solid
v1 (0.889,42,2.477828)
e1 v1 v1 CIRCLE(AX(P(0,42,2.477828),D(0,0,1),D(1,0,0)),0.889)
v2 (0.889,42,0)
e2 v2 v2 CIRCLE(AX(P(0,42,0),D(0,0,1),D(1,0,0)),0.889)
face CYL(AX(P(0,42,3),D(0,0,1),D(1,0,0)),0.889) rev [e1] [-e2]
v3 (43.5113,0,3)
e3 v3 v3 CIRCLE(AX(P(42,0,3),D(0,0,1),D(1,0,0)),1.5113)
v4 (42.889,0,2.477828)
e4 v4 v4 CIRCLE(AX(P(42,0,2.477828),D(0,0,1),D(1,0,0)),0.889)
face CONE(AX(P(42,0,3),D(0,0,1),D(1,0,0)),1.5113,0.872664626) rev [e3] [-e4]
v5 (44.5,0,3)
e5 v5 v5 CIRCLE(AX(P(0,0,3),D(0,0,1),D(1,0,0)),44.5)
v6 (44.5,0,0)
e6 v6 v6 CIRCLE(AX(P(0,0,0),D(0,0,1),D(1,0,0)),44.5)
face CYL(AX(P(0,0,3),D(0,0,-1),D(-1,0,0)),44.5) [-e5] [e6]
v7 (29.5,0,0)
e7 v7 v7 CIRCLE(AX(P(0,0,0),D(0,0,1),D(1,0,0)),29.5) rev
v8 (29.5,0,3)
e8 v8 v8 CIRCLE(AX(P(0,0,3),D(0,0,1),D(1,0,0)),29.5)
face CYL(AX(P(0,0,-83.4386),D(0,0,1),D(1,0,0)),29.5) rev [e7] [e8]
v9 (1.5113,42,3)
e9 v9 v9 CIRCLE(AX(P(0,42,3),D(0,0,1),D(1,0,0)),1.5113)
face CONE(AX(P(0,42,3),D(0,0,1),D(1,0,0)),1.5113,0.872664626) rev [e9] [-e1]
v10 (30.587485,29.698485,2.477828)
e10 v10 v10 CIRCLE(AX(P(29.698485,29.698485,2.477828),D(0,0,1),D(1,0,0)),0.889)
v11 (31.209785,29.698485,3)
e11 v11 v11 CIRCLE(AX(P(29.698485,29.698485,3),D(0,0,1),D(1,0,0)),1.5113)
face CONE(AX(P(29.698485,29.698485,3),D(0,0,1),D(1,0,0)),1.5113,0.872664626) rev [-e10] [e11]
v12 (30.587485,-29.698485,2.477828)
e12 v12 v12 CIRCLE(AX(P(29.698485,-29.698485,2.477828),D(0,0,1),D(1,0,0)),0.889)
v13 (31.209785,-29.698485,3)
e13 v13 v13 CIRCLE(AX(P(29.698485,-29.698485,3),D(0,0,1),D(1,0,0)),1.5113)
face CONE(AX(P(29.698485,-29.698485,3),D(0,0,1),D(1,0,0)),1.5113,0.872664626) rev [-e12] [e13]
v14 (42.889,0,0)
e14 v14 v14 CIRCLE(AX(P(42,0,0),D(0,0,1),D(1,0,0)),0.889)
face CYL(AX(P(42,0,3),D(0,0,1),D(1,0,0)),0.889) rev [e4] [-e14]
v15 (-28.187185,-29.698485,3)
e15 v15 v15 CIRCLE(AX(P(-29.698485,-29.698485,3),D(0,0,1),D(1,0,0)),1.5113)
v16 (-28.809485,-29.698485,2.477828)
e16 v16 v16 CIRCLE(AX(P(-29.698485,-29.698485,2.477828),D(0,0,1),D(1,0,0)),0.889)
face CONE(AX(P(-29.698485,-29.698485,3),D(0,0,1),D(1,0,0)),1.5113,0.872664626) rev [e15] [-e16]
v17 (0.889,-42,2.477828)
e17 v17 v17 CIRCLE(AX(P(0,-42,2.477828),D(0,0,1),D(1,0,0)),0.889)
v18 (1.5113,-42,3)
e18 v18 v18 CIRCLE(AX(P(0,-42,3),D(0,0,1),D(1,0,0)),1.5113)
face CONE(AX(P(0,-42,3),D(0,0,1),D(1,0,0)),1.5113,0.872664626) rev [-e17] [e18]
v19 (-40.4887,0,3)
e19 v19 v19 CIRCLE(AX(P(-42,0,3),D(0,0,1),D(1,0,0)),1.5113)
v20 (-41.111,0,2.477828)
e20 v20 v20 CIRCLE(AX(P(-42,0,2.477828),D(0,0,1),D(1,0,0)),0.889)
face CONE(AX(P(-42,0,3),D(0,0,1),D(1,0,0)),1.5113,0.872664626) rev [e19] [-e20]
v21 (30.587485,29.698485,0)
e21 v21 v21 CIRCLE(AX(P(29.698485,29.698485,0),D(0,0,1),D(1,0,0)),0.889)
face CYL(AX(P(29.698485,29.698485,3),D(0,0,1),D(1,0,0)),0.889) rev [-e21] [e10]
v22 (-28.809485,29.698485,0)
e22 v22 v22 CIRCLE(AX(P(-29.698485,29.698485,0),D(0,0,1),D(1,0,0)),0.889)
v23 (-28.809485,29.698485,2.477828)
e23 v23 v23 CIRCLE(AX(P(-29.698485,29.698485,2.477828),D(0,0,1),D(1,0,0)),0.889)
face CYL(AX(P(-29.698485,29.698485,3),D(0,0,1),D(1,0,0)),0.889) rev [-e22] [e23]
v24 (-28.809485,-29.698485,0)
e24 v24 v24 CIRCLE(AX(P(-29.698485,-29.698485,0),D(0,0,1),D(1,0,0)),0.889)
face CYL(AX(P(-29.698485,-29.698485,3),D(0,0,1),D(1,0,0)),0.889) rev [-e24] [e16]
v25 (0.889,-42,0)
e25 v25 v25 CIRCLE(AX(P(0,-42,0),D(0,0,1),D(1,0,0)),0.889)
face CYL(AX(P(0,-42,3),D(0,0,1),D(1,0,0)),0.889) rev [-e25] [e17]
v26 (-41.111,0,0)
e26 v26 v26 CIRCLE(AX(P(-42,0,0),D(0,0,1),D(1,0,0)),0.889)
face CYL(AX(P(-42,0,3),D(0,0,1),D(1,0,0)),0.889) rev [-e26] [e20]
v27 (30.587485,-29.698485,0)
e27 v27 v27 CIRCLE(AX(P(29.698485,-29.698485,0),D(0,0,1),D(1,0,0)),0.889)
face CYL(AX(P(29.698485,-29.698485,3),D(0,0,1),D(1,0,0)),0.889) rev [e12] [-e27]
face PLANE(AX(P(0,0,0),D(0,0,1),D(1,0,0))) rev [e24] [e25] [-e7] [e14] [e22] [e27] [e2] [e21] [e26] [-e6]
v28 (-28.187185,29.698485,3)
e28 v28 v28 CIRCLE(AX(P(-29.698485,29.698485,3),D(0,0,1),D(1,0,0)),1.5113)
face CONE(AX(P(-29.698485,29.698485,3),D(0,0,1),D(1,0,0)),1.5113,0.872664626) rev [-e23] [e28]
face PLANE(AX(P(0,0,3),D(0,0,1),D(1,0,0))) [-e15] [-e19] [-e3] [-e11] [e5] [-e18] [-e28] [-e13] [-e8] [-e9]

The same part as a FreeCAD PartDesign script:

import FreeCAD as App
import Part
import Sketcher
Q = App.Units.Quantity

doc = App.newDocument("Part")
body = doc.addObject("PartDesign::Body", "Body")

# Sketch on XY plane
sketch1 = body.newObject("Sketcher::SketchObject", "Sketch")
sketch1.AttachmentSupport = (doc.getObject("XY_Plane"), [""])
sketch1.MapMode = "FlatFace"
sketch1.addGeometry(Part.Circle(App.Vector(0, 0, 0), App.Vector(0, 0, 1), 44), False)
sketch1.addConstraint([
    Sketcher.Constraint("Coincident", 0, 3, -1, 1),
    Sketcher.Constraint("Diameter", 0, Q("89 mm")),
])
pad1 = body.newObject("PartDesign::Pad", "Pad")
pad1.Profile = sketch1
pad1.Length = 3

# Sketch on XY plane
sketch2 = body.newObject("Sketcher::SketchObject", "Sketch001")
sketch2.AttachmentSupport = (doc.getObject("XY_Plane"), [""])
sketch2.MapMode = "FlatFace"
sketch2.AttachmentOffset = App.Placement(App.Vector(0, 0, 3), App.Rotation())
sketch2.addGeometry(Part.Circle(App.Vector(0, 0, 0), App.Vector(0, 0, 1), 30), False)
sketch2.addConstraint([
    Sketcher.Constraint("Coincident", 0, 3, -1, 1),
    Sketcher.Constraint("Diameter", 0, Q("59 mm")),
])
pocket1 = body.newObject("PartDesign::Pocket", "Pocket")
pocket1.Profile = sketch2
pocket1.Length = 3

# Sketch on XY plane
sketch3 = body.newObject("Sketcher::SketchObject", "Sketch002")
sketch3.AttachmentSupport = (doc.getObject("XY_Plane"), [""])
sketch3.MapMode = "FlatFace"
sketch3.AttachmentOffset = App.Placement(App.Vector(0, 0, 3), App.Rotation())
sketch3.addGeometry(Part.Circle(App.Vector(0, 42, 0), App.Vector(0, 0, 1), 0.9), False)
sketch3.addConstraint([
    Sketcher.Constraint("PointOnObject", 0, 3, -2),
    Sketcher.Constraint("Diameter", 0, Q("1.778 mm")),
    Sketcher.Constraint("DistanceY", -1, 1, 0, 3, Q("42 mm")),
])
doc.recompute()
hole = body.newObject("PartDesign::Hole", "Hole")
hole.Profile = sketch3
hole.ThreadType = "None"
hole.Diameter = 1.778
hole.DepthType = "ThroughAll"
hole.HoleCutType = "Countersink"
hole.HoleCutDiameter = 3.0226
hole.HoleCutCountersinkAngle = 100
doc.recompute()

polarpattern = body.newObject("PartDesign::PolarPattern", "PolarPattern")
polarpattern.Originals = [hole]
polarpattern.Axis = (doc.getObject("Z_Axis"), [""])
polarpattern.Angle = 360
polarpattern.Occurrences = 8
body.Tip = polarpattern

doc.recompute()
